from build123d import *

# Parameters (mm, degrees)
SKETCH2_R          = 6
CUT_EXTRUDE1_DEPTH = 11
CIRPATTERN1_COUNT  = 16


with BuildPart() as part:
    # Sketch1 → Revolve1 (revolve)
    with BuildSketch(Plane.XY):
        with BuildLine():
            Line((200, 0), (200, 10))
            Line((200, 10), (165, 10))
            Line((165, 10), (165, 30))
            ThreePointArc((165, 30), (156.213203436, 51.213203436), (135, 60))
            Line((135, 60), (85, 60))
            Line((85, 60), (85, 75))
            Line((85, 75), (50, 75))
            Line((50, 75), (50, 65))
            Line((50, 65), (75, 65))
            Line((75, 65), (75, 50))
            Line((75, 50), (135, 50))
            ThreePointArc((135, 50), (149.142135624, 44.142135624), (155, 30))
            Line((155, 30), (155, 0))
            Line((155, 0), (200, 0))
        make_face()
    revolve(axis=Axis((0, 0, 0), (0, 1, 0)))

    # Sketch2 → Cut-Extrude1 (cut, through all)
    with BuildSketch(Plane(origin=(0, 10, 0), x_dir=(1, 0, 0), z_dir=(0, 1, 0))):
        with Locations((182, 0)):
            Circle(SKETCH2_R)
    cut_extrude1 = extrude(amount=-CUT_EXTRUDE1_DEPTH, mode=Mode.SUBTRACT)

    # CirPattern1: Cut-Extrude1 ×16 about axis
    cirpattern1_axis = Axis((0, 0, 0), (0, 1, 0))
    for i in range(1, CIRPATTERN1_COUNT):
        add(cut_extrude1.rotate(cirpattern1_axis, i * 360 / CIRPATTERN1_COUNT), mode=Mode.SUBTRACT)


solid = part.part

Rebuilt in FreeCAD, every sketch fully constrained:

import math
import FreeCAD as App
import Part
import Sketcher

V = App.Vector
Q = App.Units.Quantity

doc = App.newDocument("Part")
body = doc.addObject("PartDesign::Body", "Body")

sketch1 = doc.addObject("Sketcher::SketchObject", "Sketch")
body.addObject(sketch1)
sketch1.AttachmentSupport = (doc.XY_Plane, [""])
sketch1.MapMode = "FlatFace"
sketch1.addGeometry([
    Part.LineSegment(V(200, 0, 0), V(200, 10, 0)),
    Part.LineSegment(V(200, 10, 0), V(165, 10, 0)),
    Part.LineSegment(V(165, 10, 0), V(165, 30, 0)),
    Part.ArcOfCircle(Part.Circle(V(135, 30, 0), V(0, 0, 1), 30), math.radians(0), math.radians(90)),
    Part.LineSegment(V(135, 60, 0), V(85, 60, 0)),
    Part.LineSegment(V(85, 60, 0), V(85, 75, 0)),
    Part.LineSegment(V(85, 75, 0), V(50, 75, 0)),
    Part.LineSegment(V(50, 75, 0), V(50, 65, 0)),
    Part.LineSegment(V(50, 65, 0), V(75, 65, 0)),
    Part.LineSegment(V(75, 65, 0), V(75, 50, 0)),
    Part.LineSegment(V(75, 50, 0), V(135, 50, 0)),
    Part.ArcOfCircle(Part.Circle(V(135, 30, 0), V(0, 0, 1), 20), math.radians(0), math.radians(90)),
    Part.LineSegment(V(155, 30, 0), V(155, 0, 0)),
    Part.LineSegment(V(155, 0, 0), V(200, 0, 0)),
], False)
sketch1.addConstraint([
    Sketcher.Constraint("Coincident", 0, 2, 1, 1),
    Sketcher.Constraint("Coincident", 1, 2, 2, 1),
    Sketcher.Constraint("Tangent", 2, 2, 3, 1),
    Sketcher.Constraint("Tangent", 3, 2, 4, 1),
    Sketcher.Constraint("Coincident", 4, 2, 5, 1),
    Sketcher.Constraint("Coincident", 5, 2, 6, 1),
    Sketcher.Constraint("Coincident", 6, 2, 7, 1),
    Sketcher.Constraint("Coincident", 7, 2, 8, 1),
    Sketcher.Constraint("Coincident", 8, 2, 9, 1),
    Sketcher.Constraint("Coincident", 9, 2, 10, 1),
    Sketcher.Constraint("Tangent", 10, 2, 11, 2),
    Sketcher.Constraint("Tangent", 11, 1, 12, 1),
    Sketcher.Constraint("Coincident", 12, 2, 13, 1),
    Sketcher.Constraint("Coincident", 13, 2, 0, 1),
    Sketcher.Constraint("Vertical", 0),
    Sketcher.Constraint("Horizontal", 1),
    Sketcher.Constraint("Vertical", 2),
    Sketcher.Constraint("Horizontal", 4),
    Sketcher.Constraint("Vertical", 5),
    Sketcher.Constraint("Horizontal", 6),
    Sketcher.Constraint("Vertical", 7),
    Sketcher.Constraint("Horizontal", 8),
    Sketcher.Constraint("Vertical", 9),
    Sketcher.Constraint("Horizontal", 10),
    Sketcher.Constraint("Vertical", 12),
    Sketcher.Constraint("Horizontal", 13),
    Sketcher.Constraint("Coincident", 11, 3, 3, 3),
    Sketcher.Constraint("PointOnObject", 12, 2, -1),
    Sketcher.Constraint("Equal", 1, 6),
    Sketcher.Constraint("Equal", 0, 7),
    Sketcher.Constraint("Equal", 5, 9),
    Sketcher.Constraint("Radius", 3, Q("30 mm")),
    Sketcher.Constraint("Radius", 11, Q("20 mm")),
    Sketcher.Constraint("DistanceX", 1, 2, 1, 1, Q("35 mm")),
    Sketcher.Constraint("DistanceX", 4, 2, 4, 1, Q("50 mm")),
    Sketcher.Constraint("DistanceX", 8, 1, 8, 2, Q("25 mm")),
    Sketcher.Constraint("DistanceY", 2, 1, 2, 2, Q("20 mm")),
    Sketcher.Constraint("DistanceY", 5, 1, 5, 2, Q("15 mm")),
    Sketcher.Constraint("DistanceX", -1, 1, 3, 3, Q("135 mm")),
])
revolution = doc.addObject("PartDesign::Revolution", "Revolution")
body.addObject(revolution)
revolution.Profile = sketch1
revolution.ReferenceAxis = (sketch1, ["V_Axis"])
revolution.Angle = 360

sketch2 = doc.addObject("Sketcher::SketchObject", "Sketch001")
body.addObject(sketch2)
sketch2.AttachmentSupport = (doc.XZ_Plane, [""])
sketch2.MapMode = "FlatFace"
sketch2.AttachmentOffset = App.Placement(V(0, 0, -10), App.Rotation())
sketch2.addGeometry(Part.Circle(V(182, 0, 0), V(0, 0, 1), 6), False)
sketch2.addConstraint([
    Sketcher.Constraint("PointOnObject", 0, 3, -1),
    Sketcher.Constraint("Diameter", 0, Q("12 mm")),
    Sketcher.Constraint("DistanceX", -1, 1, 0, 3, Q("182 mm")),
])
pocket1 = doc.addObject("PartDesign::Pocket", "Pocket")
body.addObject(pocket1)
pocket1.Profile = sketch2
pocket1.Type = "ThroughAll"
pocket1.Reversed = True
doc.recompute()

polarpattern = doc.addObject("PartDesign::PolarPattern", "PolarPattern")
body.addObject(polarpattern)
polarpattern.Originals = [pocket1]
polarpattern.Axis = (doc.Y_Axis, [""])
polarpattern.Angle = 360
polarpattern.Occurrences = 16
body.Tip = polarpattern

doc.recompute()
